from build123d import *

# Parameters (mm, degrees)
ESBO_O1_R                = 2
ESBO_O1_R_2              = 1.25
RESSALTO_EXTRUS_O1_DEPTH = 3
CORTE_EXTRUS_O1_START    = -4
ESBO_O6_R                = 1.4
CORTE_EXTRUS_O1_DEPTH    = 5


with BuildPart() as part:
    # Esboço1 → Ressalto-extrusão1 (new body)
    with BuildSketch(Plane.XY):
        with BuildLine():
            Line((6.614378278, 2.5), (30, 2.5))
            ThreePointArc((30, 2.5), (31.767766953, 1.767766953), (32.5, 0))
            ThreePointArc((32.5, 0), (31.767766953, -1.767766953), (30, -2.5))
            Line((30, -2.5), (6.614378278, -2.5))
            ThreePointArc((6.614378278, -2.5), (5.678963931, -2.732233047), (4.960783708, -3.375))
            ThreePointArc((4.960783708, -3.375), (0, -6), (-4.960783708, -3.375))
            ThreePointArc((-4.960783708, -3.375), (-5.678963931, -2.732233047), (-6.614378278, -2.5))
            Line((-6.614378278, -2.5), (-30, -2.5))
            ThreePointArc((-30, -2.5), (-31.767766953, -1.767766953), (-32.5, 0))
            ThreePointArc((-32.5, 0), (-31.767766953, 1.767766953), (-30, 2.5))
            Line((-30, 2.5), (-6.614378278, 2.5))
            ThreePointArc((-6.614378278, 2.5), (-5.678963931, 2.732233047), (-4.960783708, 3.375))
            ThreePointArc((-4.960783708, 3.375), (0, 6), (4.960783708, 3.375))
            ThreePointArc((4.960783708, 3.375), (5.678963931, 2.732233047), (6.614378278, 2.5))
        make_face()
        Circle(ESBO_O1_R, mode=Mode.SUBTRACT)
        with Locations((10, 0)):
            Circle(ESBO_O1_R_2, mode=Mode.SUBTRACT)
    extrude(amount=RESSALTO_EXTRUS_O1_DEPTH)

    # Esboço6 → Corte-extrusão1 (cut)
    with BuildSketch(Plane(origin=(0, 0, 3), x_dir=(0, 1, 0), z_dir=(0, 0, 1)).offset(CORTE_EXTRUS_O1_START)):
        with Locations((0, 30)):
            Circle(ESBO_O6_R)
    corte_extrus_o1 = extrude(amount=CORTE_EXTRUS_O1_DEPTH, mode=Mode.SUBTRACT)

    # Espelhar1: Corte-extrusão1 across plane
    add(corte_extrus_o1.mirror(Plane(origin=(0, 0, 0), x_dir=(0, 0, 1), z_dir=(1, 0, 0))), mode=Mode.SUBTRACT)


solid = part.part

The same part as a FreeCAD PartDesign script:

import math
import FreeCAD as App
import Part
import Sketcher

V = App.Vector
Q = App.Units.Quantity

doc = App.newDocument("Part")
body = doc.addObject("PartDesign::Body", "Body")

# Sketch on XY plane
sketch1 = doc.addObject("Sketcher::SketchObject", "Sketch")
body.addObject(sketch1)
sketch1.AttachmentSupport = (doc.XY_Plane, [""])
sketch1.MapMode = "FlatFace"
sketch1.addGeometry(Part.LineSegment(V(30, 2.5, 0), V(6.6, 2.5, 0)), False)
sketch1.addGeometry(Part.ArcOfCircle(Part.Circle(V(6.6, 4.5, 0), V(0, 0, 1), 2), math.radians(-146), math.radians(-90)), False)
sketch1.addGeometry(Part.ArcOfCircle(Part.Circle(V(0, 0, 0), V(0, 0, 1), 6), math.radians(34), math.radians(146)), False)
sketch1.addGeometry(Part.ArcOfCircle(Part.Circle(V(-6.6, 4.5, 0), V(0, 0, 1), 2), math.radians(-90), math.radians(-34)), False)
sketch1.addGeometry(Part.LineSegment(V(-6.6, 2.5, 0), V(-30, 2.5, 0)), False)
sketch1.addGeometry(Part.ArcOfCircle(Part.Circle(V(-30, 0, 0), V(0, 0, 1), 2.5), math.radians(90), math.radians(180)), False)
sketch1.addGeometry(Part.ArcOfCircle(Part.Circle(V(-30, 0, 0), V(0, 0, 1), 2.5), math.radians(180), math.radians(270)), False)
sketch1.addGeometry(Part.LineSegment(V(-30, -2.5, 0), V(-6.6, -2.5, 0)), False)
sketch1.addGeometry(Part.ArcOfCircle(Part.Circle(V(-6.6, -4.5, 0), V(0, 0, 1), 2), math.radians(34), math.radians(90)), False)
sketch1.addGeometry(Part.ArcOfCircle(Part.Circle(V(0, 0, 0), V(0, 0, 1), 6), math.radians(-146), math.radians(-34)), False)
sketch1.addGeometry(Part.ArcOfCircle(Part.Circle(V(6.6, -4.5, 0), V(0, 0, 1), 2), math.radians(90), math.radians(146)), False)
sketch1.addGeometry(Part.LineSegment(V(6.6, -2.5, 0), V(30, -2.5, 0)), False)
sketch1.addGeometry(Part.ArcOfCircle(Part.Circle(V(30, 0, 0), V(0, 0, 1), 2.5), math.radians(-90), math.radians(0)), False)
sketch1.addGeometry(Part.ArcOfCircle(Part.Circle(V(30, 0, 0), V(0, 0, 1), 2.5), math.radians(0), math.radians(90)), False)
sketch1.addGeometry(Part.Circle(V(10, 0, 0), V(0, 0, 1), 1.2), False)
sketch1.addGeometry(Part.Circle(V(0, 0, 0), V(0, 0, 1), 2), False)
sketch1.addConstraint(Sketcher.Constraint("Tangent", 0, 2, 1, 2))
sketch1.addConstraint(Sketcher.Constraint("Tangent", 1, 1, 2, 1))
sketch1.addConstraint(Sketcher.Constraint("Tangent", 2, 2, 3, 2))
sketch1.addConstraint(Sketcher.Constraint("Tangent", 3, 1, 4, 1))
sketch1.addConstraint(Sketcher.Constraint("Tangent", 4, 2, 5, 1))
sketch1.addConstraint(Sketcher.Constraint("Tangent", 5, 2, 6, 1))
sketch1.addConstraint(Sketcher.Constraint("Tangent", 6, 2, 7, 1))
sketch1.addConstraint(Sketcher.Constraint("Tangent", 7, 2, 8, 2))
sketch1.addConstraint(Sketcher.Constraint("Tangent", 8, 1, 9, 1))
sketch1.addConstraint(Sketcher.Constraint("Tangent", 9, 2, 10, 2))
sketch1.addConstraint(Sketcher.Constraint("Tangent", 10, 1, 11, 1))
sketch1.addConstraint(Sketcher.Constraint("Tangent", 11, 2, 12, 1))
sketch1.addConstraint(Sketcher.Constraint("Tangent", 12, 2, 13, 1))
sketch1.addConstraint(Sketcher.Constraint("Tangent", 13, 2, 0, 1))
sketch1.addConstraint(Sketcher.Constraint("Horizontal", 0))
sketch1.addConstraint(Sketcher.Constraint("Horizontal", 4))
sketch1.addConstraint(Sketcher.Constraint("Horizontal", 7))
sketch1.addConstraint(Sketcher.Constraint("Horizontal", 11))
sketch1.addConstraint(Sketcher.Constraint("Coincident", 2, 3, -1, 1))
sketch1.addConstraint(Sketcher.Constraint("Coincident", 9, 3, -1, 1))
sketch1.addConstraint(Sketcher.Constraint("Coincident", 15, 3, -1, 1))
sketch1.addConstraint(Sketcher.Constraint("Equal", 1, 3))
sketch1.addConstraint(Sketcher.Constraint("Equal", 5, 6))
sketch1.addConstraint(Sketcher.Constraint("Equal", 3, 8))
sketch1.addConstraint(Sketcher.Constraint("Equal", 2, 9))
sketch1.addConstraint(Sketcher.Constraint("Equal", 8, 10))
sketch1.addConstraint(Sketcher.Constraint("Equal", 6, 12))
sketch1.addConstraint(Sketcher.Constraint("Equal", 12, 13))
sketch1.addConstraint(Sketcher.Constraint("Equal", 10, 15))
sketch1.addConstraint(Sketcher.Constraint("Symmetric", 5, 3, 12, 3, -1, 1))
sketch1.addConstraint(Sketcher.Constraint("PointOnObject", 5, 3, -1))
sketch1.addConstraint(Sketcher.Constraint("PointOnObject", 14, 3, -1))
sketch1.addConstraint(Sketcher.Constraint("PointOnObject", 5, 2, -1))
sketch1.addConstraint(Sketcher.Constraint("PointOnObject", 12, 2, -1))
sketch1.addConstraint(Sketcher.Constraint("Diameter", 15, Q("4 mm")))
sketch1.addConstraint(Sketcher.Constraint("Radius", 2, Q("6 mm")))
sketch1.addConstraint(Sketcher.Constraint("Diameter", 14, Q("2.5 mm")))
sketch1.addConstraint(Sketcher.Constraint("Radius", 5, Q("2.5 mm")))
sketch1.addConstraint(Sketcher.Constraint("DistanceX", 5, 3, -1, 1, Q("30 mm")))
sketch1.addConstraint(Sketcher.Constraint("DistanceX", -1, 1, 14, 3, Q("10 mm")))
pad1 = doc.addObject("PartDesign::Pad", "Pad")
body.addObject(pad1)
pad1.Profile = sketch1
pad1.Length = 3

# Sketch on XY plane
sketch2 = doc.addObject("Sketcher::SketchObject", "Sketch001")
body.addObject(sketch2)
sketch2.AttachmentSupport = (doc.XY_Plane, [""])
sketch2.MapMode = "FlatFace"
sketch2.AttachmentOffset = App.Placement(V(0, 0, -1), App.Rotation())
sketch2.addGeometry(Part.Circle(V(-30, 0, 0), V(0, 0, 1), 1.4), False)
sketch2.addConstraint(Sketcher.Constraint("PointOnObject", 0, 3, -1))
sketch2.addConstraint(Sketcher.Constraint("Diameter", 0, Q("2.8 mm")))
sketch2.addConstraint(Sketcher.Constraint("DistanceX", 0, 3, -1, 1, Q("30 mm")))
pocket1 = doc.addObject("PartDesign::Pocket", "Pocket")
body.addObject(pocket1)
pocket1.Profile = sketch2
pocket1.Length = 5
pocket1.Reversed = True
doc.recompute()

mirrored = doc.addObject("PartDesign::Mirrored", "Mirrored")
body.addObject(mirrored)
mirrored.Originals = [pocket1]
mirrored.MirrorPlane = (doc.YZ_Plane, [""])
body.Tip = mirrored

doc.recompute()
